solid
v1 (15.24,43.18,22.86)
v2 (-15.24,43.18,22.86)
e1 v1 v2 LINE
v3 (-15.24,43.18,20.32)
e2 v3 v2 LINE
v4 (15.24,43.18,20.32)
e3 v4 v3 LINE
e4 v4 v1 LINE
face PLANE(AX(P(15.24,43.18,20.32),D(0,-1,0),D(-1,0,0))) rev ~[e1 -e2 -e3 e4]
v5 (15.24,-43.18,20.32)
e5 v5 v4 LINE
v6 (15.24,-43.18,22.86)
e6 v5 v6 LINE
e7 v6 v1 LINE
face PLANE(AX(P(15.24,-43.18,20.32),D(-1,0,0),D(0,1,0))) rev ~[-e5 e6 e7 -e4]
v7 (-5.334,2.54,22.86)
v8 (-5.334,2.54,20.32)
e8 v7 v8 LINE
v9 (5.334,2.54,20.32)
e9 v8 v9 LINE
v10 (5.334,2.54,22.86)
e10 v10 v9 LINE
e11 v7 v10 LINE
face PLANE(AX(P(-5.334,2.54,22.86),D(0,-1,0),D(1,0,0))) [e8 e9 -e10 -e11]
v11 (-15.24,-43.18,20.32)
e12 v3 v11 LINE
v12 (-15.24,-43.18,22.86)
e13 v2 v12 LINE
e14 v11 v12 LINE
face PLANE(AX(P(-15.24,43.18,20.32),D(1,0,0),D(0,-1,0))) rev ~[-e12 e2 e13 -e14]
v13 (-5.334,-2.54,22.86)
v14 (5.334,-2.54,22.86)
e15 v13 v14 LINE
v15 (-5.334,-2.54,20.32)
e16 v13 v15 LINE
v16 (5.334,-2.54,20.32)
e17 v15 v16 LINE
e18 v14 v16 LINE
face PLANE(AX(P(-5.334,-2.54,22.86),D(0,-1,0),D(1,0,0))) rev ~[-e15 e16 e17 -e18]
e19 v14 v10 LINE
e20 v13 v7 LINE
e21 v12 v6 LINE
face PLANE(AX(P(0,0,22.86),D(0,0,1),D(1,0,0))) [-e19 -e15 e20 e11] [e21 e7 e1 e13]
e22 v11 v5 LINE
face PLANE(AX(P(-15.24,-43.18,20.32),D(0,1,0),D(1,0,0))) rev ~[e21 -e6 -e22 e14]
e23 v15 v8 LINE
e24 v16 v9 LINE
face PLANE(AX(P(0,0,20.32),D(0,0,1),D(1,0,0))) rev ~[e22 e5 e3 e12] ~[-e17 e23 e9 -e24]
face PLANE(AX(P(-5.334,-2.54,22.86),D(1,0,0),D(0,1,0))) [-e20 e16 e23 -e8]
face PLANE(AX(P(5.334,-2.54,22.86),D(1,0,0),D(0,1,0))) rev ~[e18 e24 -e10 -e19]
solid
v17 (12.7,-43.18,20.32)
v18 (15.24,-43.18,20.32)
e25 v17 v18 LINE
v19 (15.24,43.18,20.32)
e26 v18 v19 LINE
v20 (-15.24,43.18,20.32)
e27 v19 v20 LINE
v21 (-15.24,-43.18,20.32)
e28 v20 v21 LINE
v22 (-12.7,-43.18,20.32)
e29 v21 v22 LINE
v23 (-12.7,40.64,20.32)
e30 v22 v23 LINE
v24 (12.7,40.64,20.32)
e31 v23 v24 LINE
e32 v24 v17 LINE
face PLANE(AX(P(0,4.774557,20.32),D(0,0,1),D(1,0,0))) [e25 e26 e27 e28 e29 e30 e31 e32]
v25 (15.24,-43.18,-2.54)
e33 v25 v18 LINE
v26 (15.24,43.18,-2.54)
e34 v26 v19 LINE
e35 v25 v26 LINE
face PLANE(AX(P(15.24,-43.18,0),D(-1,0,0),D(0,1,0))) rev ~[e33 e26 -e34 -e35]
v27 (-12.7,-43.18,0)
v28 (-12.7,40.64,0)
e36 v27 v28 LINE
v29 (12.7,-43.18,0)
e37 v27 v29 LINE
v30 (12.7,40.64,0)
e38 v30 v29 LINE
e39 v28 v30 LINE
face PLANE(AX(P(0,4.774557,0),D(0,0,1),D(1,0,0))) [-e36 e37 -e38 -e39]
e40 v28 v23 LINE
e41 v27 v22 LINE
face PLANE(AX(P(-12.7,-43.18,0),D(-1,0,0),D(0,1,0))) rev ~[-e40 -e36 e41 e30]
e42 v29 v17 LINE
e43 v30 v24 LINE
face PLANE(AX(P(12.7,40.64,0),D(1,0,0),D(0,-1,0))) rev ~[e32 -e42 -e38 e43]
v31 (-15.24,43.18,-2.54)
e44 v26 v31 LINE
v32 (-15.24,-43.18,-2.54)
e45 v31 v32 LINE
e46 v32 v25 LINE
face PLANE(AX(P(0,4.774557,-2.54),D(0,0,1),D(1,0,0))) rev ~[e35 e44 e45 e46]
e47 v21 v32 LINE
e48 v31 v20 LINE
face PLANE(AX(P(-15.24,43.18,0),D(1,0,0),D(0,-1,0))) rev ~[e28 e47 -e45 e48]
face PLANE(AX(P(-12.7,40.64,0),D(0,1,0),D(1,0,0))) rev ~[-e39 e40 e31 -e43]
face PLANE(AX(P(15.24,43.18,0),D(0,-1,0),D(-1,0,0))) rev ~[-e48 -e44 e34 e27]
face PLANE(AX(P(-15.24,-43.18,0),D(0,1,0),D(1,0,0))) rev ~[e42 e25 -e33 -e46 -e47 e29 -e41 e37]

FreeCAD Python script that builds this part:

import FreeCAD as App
import Part
import Sketcher

V = App.Vector
Q = App.Units.Quantity


def add_polygon(sketch, points):
    """Adds a closed chain of lines whose ends are joined by coincident constraints."""
    first, n = sketch.GeometryCount, len(points)
    for a, b in zip(points, points[1:] + points[:1]):
        sketch.addGeometry(Part.LineSegment(App.Vector(*a, 0), App.Vector(*b, 0)), False)
    for i in range(n):
        sketch.addConstraint(Sketcher.Constraint("Coincident", first + i, 2, first + (i + 1) % n, 1))

doc = App.newDocument("Part")
body = doc.addObject("PartDesign::Body", "Body")

# Sketch on XY plane
sketch1 = body.newObject("Sketcher::SketchObject", "Sketch")
sketch1.AttachmentSupport = (doc.getObject("XY_Plane"), [""])
sketch1.MapMode = "FlatFace"
add_polygon(sketch1, [(15.24, -43.18), (15.24, 43.18), (-15.24, 43.18), (-15.24, -43.18)])  # lines 0-3
sketch1.addConstraint([
    Sketcher.Constraint("Vertical", 0),
    Sketcher.Constraint("Horizontal", 1),
    Sketcher.Constraint("Vertical", 2),
    Sketcher.Constraint("Horizontal", 3),
    Sketcher.Constraint("Symmetric", 0, 2, 2, 2, -1, 1),
    Sketcher.Constraint("DistanceX", 1, 2, 1, 1, Q("1.2 in")),
    Sketcher.Constraint("DistanceY", 0, 1, 0, 2, Q("3.4 in")),
])
pad1 = body.newObject("PartDesign::Pad", "Pad")
pad1.Profile = sketch1
pad1.Length = Q("0.1 in")
pad1.Reversed = True

# Sketch on XY plane
sketch2 = body.newObject("Sketcher::SketchObject", "Sketch001")
sketch2.AttachmentSupport = (doc.getObject("XY_Plane"), [""])
sketch2.MapMode = "FlatFace"
add_polygon(sketch2, [(-12.7, 40.64), (12.7, 40.64), (12.7, -43.18), (15.24, -43.18), (15.24, 43.18), (-15.24, 43.18), (-15.24, -43.18), (-12.7, -43.18)])  # lines 0-7
sketch2.addConstraint([
    Sketcher.Constraint("Horizontal", 0),
    Sketcher.Constraint("Vertical", 1),
    Sketcher.Constraint("Horizontal", 2),
    Sketcher.Constraint("Vertical", 3),
    Sketcher.Constraint("Horizontal", 4),
    Sketcher.Constraint("Vertical", 5),
    Sketcher.Constraint("Horizontal", 6),
    Sketcher.Constraint("Vertical", 7),
    Sketcher.Constraint("Symmetric", 2, 2, 4, 2, -1, 1),
    Sketcher.Constraint("Symmetric", 1, 2, 6, 2, -2),
    Sketcher.Constraint("DistanceX", 0, 1, 0, 2, Q("1 in")),
    Sketcher.Constraint("DistanceX", 2, 1, 2, 2, Q("0.1 in")),
    Sketcher.Constraint("DistanceY", 1, 2, 1, 1, Q("3.3 in")),
    Sketcher.Constraint("DistanceY", 3, 1, 3, 2, Q("3.4 in")),
])
pad2 = body.newObject("PartDesign::Pad", "Pad001")
pad2.Profile = sketch2
pad2.Length = Q("0.8 in")
body2 = doc.addObject("PartDesign::Body", "Body001")

# Sketch on XY plane
sketch3 = body2.newObject("Sketcher::SketchObject", "Sketch002")
sketch3.AttachmentSupport = (doc.getObject("XY_Plane001"), [""])
sketch3.MapMode = "FlatFace"
sketch3.AttachmentOffset = App.Placement(V(0, 0, 0.8 * 25.4), App.Rotation())
add_polygon(sketch3, [(15.24, -43.18), (15.24, 43.18), (-15.24, 43.18), (-15.24, -43.18)])  # lines 0-3
sketch3.addConstraint([
    Sketcher.Constraint("Vertical", 0),
    Sketcher.Constraint("Horizontal", 1),
    Sketcher.Constraint("Vertical", 2),
    Sketcher.Constraint("Horizontal", 3),
    Sketcher.Constraint("Symmetric", 0, 2, 2, 2, -1, 1),
    Sketcher.Constraint("DistanceX", 1, 2, 1, 1, Q("1.2 in")),
    Sketcher.Constraint("DistanceY", 0, 1, 0, 2, Q("3.4 in")),
])
pad3 = body2.newObject("PartDesign::Pad", "Pad002")
pad3.Profile = sketch3
pad3.Length = Q("0.1 in")

# Sketch on XY plane
sketch4 = body2.newObject("Sketcher::SketchObject", "Sketch003")
sketch4.AttachmentSupport = (doc.getObject("XY_Plane001"), [""])
sketch4.MapMode = "FlatFace"
sketch4.AttachmentOffset = App.Placement(V(0, 0, 0.9 * 25.4), App.Rotation())
add_polygon(sketch4, [(-5.334, 2.54), (-5.334, -2.54), (5.334, -2.54), (5.334, 2.54)])  # lines 0-3
sketch4.addConstraint([
    Sketcher.Constraint("Vertical", 0),
    Sketcher.Constraint("Horizontal", 1),
    Sketcher.Constraint("Vertical", 2),
    Sketcher.Constraint("Horizontal", 3),
    Sketcher.Constraint("Symmetric", 0, 2, 2, 2, -1, 1),
    Sketcher.Constraint("DistanceY", 0, 2, 0, 1, Q("0.2 in")),
    Sketcher.Constraint("DistanceX", 1, 1, 1, 2, Q("0.42 in")),
])
pocket1 = body2.newObject("PartDesign::Pocket", "Pocket")
pocket1.Profile = sketch4
pocket1.Length = Q("0.2 in")

doc.recompute()
